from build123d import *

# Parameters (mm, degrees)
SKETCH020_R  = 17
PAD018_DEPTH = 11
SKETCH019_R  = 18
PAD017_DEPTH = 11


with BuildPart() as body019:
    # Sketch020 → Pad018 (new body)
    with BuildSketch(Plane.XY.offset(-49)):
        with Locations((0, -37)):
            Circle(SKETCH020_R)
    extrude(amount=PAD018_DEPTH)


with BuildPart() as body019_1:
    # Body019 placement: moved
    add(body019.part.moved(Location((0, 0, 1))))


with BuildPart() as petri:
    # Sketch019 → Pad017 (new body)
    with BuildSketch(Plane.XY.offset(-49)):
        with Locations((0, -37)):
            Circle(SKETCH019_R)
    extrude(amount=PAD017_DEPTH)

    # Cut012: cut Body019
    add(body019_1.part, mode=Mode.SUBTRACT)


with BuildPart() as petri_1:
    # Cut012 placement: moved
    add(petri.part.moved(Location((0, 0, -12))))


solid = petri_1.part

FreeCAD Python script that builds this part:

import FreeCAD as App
import Part
import Sketcher
from FreeCAD import Vector

doc = App.newDocument("Part")
params = doc.addObject("Spreadsheet::Sheet", "Params")
for row, (alias, value) in enumerate([
    ("sketch1_diameter", "34 mm"),
    ("pad1_length", "11 mm"),
    ("sketch2_diameter", "36 mm"),
    ("pad2_length", "11 mm"),
], start=1):
    params.set(f"A{row}", alias)
    params.set(f"B{row}", "=" + value)
    params.setAlias(f"B{row}", alias)

body = doc.addObject("PartDesign::Body", "Body")

# Sketch on XY plane
sketch1 = body.newObject("Sketcher::SketchObject", "Sketch")
sketch1.AttachmentSupport = (doc.getObject("XY_Plane"), [""])
sketch1.MapMode = "FlatFace"
sketch1.AttachmentOffset = App.Placement(Vector(0, 0, -49), App.Rotation())
sketch1.addGeometry(Part.Circle(Vector(0, -37, 0), Vector(0, 0, 1), 17), False)
sketch1.addConstraint([
    Sketcher.Constraint("PointOnObject", 0, 3, -2),
    Sketcher.Constraint("Diameter", 0, 34.0),
    Sketcher.Constraint("DistanceY", 0, 3, -1, 1, 37.0),
])
sketch1.setExpression("Constraints[1]", "Params.sketch1_diameter")
pad1 = body.newObject("PartDesign::Pad", "Pad")
pad1.Profile = sketch1
pad1.setExpression("Length", "Params.pad1_length")
body2 = doc.addObject("PartDesign::Body", "Body001")
doc.recompute()

body.Placement = App.Placement(Vector(0, 0, 1), App.Rotation(Vector(0, 0, 1), 0))
boolean = body2.newObject("PartDesign::Boolean", "Boolean")
boolean.Type = "Fuse"
boolean.addObjects([body])
body3 = doc.addObject("PartDesign::Body", "Body002")

# Sketch on XY plane
sketch2 = body3.newObject("Sketcher::SketchObject", "Sketch001")
sketch2.AttachmentSupport = (doc.getObject("XY_Plane002"), [""])
sketch2.MapMode = "FlatFace"
sketch2.AttachmentOffset = App.Placement(Vector(0, 0, -49), App.Rotation())
sketch2.addGeometry(Part.Circle(Vector(0, -37, 0), Vector(0, 0, 1), 18), False)
sketch2.addConstraint([
    Sketcher.Constraint("PointOnObject", 0, 3, -2),
    Sketcher.Constraint("Diameter", 0, 36.0),
    Sketcher.Constraint("DistanceY", 0, 3, -1, 1, 37.0),
])
sketch2.setExpression("Constraints[1]", "Params.sketch2_diameter")
pad2 = body3.newObject("PartDesign::Pad", "Pad001")
pad2.Profile = sketch2
pad2.setExpression("Length", "Params.pad2_length")
doc.recompute()

boolean2 = body3.newObject("PartDesign::Boolean", "Boolean001")
boolean2.Type = "Cut"
boolean2.addObjects([body2])
body4 = doc.addObject("PartDesign::Body", "Body003")
doc.recompute()

body3.Placement = App.Placement(Vector(0, 0, -12), App.Rotation(Vector(0, 0, 1), 0))
boolean3 = body4.newObject("PartDesign::Boolean", "Boolean002")
boolean3.Type = "Fuse"
boolean3.addObjects([body3])

doc.recompute()
